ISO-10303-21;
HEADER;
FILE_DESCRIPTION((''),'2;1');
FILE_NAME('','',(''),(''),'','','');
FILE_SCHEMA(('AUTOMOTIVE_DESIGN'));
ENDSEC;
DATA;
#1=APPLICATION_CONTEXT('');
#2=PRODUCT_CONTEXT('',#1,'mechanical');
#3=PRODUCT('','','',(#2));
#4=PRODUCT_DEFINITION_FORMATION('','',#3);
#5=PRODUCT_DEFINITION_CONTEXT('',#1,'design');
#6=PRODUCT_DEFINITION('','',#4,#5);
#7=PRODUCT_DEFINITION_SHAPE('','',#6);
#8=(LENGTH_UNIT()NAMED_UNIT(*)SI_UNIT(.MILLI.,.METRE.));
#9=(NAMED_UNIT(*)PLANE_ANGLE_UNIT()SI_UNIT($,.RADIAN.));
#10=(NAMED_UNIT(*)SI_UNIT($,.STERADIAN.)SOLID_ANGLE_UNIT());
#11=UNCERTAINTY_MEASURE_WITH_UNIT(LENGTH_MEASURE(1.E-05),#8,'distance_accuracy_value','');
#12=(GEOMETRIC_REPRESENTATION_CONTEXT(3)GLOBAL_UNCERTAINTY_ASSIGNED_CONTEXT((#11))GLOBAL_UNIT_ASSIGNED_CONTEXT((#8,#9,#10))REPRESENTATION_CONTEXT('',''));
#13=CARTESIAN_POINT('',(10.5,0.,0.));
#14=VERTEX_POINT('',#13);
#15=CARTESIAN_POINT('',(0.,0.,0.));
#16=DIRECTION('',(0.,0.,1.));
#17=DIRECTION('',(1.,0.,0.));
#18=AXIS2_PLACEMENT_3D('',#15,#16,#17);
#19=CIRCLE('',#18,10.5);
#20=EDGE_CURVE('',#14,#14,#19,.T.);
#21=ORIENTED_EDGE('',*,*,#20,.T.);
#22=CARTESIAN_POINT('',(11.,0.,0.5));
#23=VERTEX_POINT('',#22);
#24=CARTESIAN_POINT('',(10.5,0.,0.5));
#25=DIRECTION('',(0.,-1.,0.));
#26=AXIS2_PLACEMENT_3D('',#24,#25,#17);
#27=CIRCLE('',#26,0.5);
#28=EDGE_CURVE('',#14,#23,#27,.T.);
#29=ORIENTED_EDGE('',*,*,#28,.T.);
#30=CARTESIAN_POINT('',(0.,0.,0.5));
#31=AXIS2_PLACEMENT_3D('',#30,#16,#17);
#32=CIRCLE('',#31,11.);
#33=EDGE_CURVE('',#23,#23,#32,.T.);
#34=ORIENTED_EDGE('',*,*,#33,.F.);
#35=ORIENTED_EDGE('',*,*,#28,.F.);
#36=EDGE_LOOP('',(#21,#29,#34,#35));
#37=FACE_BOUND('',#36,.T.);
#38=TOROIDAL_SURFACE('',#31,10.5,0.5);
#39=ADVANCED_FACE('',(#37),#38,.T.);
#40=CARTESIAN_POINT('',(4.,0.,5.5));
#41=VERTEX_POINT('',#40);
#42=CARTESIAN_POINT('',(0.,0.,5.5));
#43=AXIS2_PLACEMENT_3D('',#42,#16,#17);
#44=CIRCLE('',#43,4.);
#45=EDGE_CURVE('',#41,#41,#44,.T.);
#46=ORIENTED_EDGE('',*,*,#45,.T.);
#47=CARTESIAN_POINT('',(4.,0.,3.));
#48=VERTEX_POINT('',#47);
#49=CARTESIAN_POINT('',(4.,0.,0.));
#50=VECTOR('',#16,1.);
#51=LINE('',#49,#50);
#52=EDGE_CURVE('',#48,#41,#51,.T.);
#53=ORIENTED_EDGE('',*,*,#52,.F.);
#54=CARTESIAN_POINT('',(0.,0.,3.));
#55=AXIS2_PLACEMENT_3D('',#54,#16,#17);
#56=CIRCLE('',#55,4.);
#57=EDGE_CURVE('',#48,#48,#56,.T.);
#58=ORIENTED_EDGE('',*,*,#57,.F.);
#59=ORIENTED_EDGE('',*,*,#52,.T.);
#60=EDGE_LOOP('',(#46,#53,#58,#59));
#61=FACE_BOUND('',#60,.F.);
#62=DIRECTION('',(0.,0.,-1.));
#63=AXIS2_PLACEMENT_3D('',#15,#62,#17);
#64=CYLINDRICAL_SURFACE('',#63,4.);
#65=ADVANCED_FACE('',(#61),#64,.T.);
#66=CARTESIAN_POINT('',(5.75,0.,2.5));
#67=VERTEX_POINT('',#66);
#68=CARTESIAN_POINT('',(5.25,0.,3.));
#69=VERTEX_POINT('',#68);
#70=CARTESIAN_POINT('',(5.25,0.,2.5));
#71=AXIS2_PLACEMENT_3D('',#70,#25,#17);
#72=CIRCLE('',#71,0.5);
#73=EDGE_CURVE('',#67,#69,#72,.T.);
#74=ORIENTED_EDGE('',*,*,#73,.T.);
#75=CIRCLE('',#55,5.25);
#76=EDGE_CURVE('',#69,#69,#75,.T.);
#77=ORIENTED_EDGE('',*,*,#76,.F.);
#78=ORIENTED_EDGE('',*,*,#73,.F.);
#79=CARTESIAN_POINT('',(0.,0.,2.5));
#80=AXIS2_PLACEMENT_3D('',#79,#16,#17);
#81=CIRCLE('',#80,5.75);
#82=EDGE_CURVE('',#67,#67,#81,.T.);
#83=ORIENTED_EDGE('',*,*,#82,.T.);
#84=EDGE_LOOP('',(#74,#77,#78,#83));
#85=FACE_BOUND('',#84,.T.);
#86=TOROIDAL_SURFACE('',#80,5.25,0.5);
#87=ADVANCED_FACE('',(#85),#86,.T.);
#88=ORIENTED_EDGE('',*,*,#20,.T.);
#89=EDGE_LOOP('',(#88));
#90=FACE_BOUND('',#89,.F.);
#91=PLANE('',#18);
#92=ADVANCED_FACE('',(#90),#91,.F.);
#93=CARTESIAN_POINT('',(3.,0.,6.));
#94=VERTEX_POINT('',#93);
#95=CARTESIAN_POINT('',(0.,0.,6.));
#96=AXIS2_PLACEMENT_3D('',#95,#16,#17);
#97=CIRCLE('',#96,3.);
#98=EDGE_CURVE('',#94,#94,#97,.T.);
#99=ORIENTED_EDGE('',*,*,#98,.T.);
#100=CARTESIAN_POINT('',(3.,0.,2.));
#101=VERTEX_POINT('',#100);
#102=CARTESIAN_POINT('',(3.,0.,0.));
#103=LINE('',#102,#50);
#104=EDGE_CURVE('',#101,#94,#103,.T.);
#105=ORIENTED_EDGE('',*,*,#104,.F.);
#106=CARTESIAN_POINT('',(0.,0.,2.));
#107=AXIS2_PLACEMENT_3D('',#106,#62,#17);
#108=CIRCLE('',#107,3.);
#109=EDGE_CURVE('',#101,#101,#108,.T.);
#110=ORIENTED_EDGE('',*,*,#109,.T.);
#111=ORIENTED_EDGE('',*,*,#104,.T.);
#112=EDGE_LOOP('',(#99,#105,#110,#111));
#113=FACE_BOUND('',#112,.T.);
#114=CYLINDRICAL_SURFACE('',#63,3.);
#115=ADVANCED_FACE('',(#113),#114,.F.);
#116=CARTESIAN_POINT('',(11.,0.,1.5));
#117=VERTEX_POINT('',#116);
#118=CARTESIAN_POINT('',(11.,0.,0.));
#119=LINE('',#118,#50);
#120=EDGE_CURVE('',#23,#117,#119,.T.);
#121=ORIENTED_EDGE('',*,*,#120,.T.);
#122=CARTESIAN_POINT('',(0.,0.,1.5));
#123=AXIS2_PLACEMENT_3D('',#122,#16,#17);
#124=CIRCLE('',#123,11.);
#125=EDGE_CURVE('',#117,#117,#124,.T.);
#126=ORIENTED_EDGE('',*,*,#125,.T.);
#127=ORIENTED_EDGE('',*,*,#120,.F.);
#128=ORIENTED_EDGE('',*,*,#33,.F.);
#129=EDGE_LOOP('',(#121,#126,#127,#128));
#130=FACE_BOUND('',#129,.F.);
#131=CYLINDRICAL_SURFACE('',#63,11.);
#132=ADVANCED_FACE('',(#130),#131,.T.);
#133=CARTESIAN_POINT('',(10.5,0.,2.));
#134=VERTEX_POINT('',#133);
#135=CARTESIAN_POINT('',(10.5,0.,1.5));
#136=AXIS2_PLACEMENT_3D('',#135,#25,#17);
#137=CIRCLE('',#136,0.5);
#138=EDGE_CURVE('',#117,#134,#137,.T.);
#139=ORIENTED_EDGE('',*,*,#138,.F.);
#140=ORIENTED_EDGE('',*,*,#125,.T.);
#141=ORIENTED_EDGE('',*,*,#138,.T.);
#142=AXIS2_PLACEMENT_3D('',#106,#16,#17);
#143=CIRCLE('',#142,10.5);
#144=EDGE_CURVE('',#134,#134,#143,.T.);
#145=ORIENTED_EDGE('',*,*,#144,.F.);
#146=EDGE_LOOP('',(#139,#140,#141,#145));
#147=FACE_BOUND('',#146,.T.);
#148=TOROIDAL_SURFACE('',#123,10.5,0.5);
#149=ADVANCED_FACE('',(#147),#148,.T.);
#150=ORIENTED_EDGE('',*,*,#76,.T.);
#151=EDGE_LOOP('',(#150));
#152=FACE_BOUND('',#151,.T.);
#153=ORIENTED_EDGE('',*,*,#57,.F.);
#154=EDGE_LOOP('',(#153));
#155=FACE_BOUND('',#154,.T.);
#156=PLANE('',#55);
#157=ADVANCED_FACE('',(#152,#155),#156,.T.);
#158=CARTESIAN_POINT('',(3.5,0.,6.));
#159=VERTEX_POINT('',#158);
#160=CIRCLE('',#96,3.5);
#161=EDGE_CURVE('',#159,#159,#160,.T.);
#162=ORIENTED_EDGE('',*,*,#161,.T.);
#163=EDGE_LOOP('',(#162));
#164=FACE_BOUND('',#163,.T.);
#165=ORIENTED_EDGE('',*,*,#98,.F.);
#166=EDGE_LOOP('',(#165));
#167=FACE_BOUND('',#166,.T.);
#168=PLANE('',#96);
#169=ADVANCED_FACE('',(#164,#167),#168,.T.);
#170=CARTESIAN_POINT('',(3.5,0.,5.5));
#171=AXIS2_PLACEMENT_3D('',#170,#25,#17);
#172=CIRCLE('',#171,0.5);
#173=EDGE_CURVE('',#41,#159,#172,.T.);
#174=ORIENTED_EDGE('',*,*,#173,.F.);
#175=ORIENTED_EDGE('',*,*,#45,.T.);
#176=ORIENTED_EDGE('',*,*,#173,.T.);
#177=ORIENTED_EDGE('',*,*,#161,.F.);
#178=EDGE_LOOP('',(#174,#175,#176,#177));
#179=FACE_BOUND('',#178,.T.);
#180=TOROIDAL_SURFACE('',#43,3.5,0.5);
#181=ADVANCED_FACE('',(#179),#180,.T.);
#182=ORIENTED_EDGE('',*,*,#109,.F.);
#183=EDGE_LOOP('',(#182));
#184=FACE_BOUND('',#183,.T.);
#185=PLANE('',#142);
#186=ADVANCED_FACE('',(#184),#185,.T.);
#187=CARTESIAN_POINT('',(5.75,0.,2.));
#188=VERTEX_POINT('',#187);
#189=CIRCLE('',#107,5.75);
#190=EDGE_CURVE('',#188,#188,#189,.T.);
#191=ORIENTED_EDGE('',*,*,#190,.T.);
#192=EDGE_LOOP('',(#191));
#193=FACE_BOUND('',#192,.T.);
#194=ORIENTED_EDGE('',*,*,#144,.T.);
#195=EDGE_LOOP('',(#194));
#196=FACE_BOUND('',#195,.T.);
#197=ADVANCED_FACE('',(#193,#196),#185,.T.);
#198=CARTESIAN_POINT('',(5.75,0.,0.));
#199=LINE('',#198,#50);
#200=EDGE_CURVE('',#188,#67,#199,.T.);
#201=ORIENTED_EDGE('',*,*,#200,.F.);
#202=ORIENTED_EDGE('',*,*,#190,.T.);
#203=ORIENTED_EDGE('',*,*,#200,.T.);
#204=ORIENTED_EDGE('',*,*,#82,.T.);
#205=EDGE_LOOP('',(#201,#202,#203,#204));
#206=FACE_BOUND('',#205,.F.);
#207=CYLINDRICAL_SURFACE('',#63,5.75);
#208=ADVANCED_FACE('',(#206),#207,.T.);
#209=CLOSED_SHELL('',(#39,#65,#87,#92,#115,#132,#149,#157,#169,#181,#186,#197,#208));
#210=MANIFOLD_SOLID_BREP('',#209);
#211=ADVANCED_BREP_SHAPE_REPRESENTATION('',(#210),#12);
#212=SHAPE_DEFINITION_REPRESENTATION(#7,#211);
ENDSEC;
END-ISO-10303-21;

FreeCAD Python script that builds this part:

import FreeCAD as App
import Part
import Sketcher

V = App.Vector


def edges_at(feature, points):
    """Names of the edges that pass closest to the given points."""
    edges = feature.Shape.Edges
    near = lambda p: min(range(len(edges)), key=lambda i: edges[i].distToShape(Part.Vertex(*p))[0])
    return sorted({f"Edge{near(p) + 1}" for p in points})

doc = App.newDocument("Part")
params = doc.addObject("Spreadsheet::Sheet", "Params")
for row, (alias, value) in enumerate([
    ("sketch1_diameter", "22 mm"),
    ("pad1_length", "2 mm"),
    ("sketch2_diameter", "8 mm"),
    ("sketch2_diameter2", "11.5 mm"),
    ("pad2_length", "3 mm"),
    ("sketch3_diameter", "8 mm"),
    ("sketch3_diameter2", "6 mm"),
    ("pad3_length", "6 mm"),
    ("fillet_radius", "0.5 mm"),
], start=1):
    params.set(f"A{row}", alias)
    params.set(f"B{row}", "=" + value)
    params.setAlias(f"B{row}", alias)

body = doc.addObject("PartDesign::Body", "Body")

sketch1 = doc.addObject("Sketcher::SketchObject", "Sketch")
body.addObject(sketch1)
sketch1.AttachmentSupport = (doc.XY_Plane, [""])
sketch1.MapMode = "FlatFace"
sketch1.addGeometry(Part.Circle(V(0, 0, 0), V(0, 0, 1), 11), False)
sketch1.addConstraint([
    Sketcher.Constraint("Coincident", 0, 3, -1, 1),
    Sketcher.Constraint("Diameter", 0, 22.0),
])
sketch1.setExpression("Constraints[1]", "Params.sketch1_diameter")
pad1 = doc.addObject("PartDesign::Pad", "Pad")
body.addObject(pad1)
pad1.Profile = sketch1
pad1.setExpression("Length", "Params.pad1_length")

sketch2 = doc.addObject("Sketcher::SketchObject", "Sketch001")
body.addObject(sketch2)
sketch2.AttachmentSupport = (doc.XY_Plane, [""])
sketch2.MapMode = "FlatFace"
sketch2.addGeometry([
    Part.Circle(V(0, 0, 0), V(0, 0, 1), 5.8),
    Part.Circle(V(0, 0, 0), V(0, 0, 1), 4),
], False)
sketch2.addConstraint([
    Sketcher.Constraint("Coincident", 0, 3, -1, 1),
    Sketcher.Constraint("Coincident", 1, 3, -1, 1),
    Sketcher.Constraint("Diameter", 1, 8.0),
    Sketcher.Constraint("Diameter", 0, 11.5),
])
sketch2.setExpression("Constraints[2]", "Params.sketch2_diameter")
sketch2.setExpression("Constraints[3]", "Params.sketch2_diameter2")
pad2 = doc.addObject("PartDesign::Pad", "Pad001")
body.addObject(pad2)
pad2.Profile = sketch2
pad2.setExpression("Length", "Params.pad2_length")

sketch3 = doc.addObject("Sketcher::SketchObject", "Sketch002")
body.addObject(sketch3)
sketch3.AttachmentSupport = (doc.XY_Plane, [""])
sketch3.MapMode = "FlatFace"
sketch3.addGeometry([
    Part.Circle(V(0, 0, 0), V(0, 0, 1), 4),
    Part.Circle(V(0, 0, 0), V(0, 0, 1), 3),
], False)
sketch3.addConstraint([
    Sketcher.Constraint("Coincident", 0, 3, -1, 1),
    Sketcher.Constraint("Coincident", 1, 3, -1, 1),
    Sketcher.Constraint("Diameter", 0, 8.0),
    Sketcher.Constraint("Diameter", 1, 6.0),
])
sketch3.setExpression("Constraints[2]", "Params.sketch3_diameter")
sketch3.setExpression("Constraints[3]", "Params.sketch3_diameter2")
pad3 = doc.addObject("PartDesign::Pad", "Pad002")
body.addObject(pad3)
pad3.Profile = sketch3
pad3.setExpression("Length", "Params.pad3_length")
doc.recompute()

fillet = doc.addObject("PartDesign::Fillet", "Fillet")
body.addObject(fillet)
fillet.Base = (pad3, edges_at(pad3, [
    (-4, 0, 6),
    (-5.75, 0, 3),
    (-11, 0, 2),
    (-11, 0, 0),
]))
fillet.setExpression("Radius", "Params.fillet_radius")

doc.recompute()
